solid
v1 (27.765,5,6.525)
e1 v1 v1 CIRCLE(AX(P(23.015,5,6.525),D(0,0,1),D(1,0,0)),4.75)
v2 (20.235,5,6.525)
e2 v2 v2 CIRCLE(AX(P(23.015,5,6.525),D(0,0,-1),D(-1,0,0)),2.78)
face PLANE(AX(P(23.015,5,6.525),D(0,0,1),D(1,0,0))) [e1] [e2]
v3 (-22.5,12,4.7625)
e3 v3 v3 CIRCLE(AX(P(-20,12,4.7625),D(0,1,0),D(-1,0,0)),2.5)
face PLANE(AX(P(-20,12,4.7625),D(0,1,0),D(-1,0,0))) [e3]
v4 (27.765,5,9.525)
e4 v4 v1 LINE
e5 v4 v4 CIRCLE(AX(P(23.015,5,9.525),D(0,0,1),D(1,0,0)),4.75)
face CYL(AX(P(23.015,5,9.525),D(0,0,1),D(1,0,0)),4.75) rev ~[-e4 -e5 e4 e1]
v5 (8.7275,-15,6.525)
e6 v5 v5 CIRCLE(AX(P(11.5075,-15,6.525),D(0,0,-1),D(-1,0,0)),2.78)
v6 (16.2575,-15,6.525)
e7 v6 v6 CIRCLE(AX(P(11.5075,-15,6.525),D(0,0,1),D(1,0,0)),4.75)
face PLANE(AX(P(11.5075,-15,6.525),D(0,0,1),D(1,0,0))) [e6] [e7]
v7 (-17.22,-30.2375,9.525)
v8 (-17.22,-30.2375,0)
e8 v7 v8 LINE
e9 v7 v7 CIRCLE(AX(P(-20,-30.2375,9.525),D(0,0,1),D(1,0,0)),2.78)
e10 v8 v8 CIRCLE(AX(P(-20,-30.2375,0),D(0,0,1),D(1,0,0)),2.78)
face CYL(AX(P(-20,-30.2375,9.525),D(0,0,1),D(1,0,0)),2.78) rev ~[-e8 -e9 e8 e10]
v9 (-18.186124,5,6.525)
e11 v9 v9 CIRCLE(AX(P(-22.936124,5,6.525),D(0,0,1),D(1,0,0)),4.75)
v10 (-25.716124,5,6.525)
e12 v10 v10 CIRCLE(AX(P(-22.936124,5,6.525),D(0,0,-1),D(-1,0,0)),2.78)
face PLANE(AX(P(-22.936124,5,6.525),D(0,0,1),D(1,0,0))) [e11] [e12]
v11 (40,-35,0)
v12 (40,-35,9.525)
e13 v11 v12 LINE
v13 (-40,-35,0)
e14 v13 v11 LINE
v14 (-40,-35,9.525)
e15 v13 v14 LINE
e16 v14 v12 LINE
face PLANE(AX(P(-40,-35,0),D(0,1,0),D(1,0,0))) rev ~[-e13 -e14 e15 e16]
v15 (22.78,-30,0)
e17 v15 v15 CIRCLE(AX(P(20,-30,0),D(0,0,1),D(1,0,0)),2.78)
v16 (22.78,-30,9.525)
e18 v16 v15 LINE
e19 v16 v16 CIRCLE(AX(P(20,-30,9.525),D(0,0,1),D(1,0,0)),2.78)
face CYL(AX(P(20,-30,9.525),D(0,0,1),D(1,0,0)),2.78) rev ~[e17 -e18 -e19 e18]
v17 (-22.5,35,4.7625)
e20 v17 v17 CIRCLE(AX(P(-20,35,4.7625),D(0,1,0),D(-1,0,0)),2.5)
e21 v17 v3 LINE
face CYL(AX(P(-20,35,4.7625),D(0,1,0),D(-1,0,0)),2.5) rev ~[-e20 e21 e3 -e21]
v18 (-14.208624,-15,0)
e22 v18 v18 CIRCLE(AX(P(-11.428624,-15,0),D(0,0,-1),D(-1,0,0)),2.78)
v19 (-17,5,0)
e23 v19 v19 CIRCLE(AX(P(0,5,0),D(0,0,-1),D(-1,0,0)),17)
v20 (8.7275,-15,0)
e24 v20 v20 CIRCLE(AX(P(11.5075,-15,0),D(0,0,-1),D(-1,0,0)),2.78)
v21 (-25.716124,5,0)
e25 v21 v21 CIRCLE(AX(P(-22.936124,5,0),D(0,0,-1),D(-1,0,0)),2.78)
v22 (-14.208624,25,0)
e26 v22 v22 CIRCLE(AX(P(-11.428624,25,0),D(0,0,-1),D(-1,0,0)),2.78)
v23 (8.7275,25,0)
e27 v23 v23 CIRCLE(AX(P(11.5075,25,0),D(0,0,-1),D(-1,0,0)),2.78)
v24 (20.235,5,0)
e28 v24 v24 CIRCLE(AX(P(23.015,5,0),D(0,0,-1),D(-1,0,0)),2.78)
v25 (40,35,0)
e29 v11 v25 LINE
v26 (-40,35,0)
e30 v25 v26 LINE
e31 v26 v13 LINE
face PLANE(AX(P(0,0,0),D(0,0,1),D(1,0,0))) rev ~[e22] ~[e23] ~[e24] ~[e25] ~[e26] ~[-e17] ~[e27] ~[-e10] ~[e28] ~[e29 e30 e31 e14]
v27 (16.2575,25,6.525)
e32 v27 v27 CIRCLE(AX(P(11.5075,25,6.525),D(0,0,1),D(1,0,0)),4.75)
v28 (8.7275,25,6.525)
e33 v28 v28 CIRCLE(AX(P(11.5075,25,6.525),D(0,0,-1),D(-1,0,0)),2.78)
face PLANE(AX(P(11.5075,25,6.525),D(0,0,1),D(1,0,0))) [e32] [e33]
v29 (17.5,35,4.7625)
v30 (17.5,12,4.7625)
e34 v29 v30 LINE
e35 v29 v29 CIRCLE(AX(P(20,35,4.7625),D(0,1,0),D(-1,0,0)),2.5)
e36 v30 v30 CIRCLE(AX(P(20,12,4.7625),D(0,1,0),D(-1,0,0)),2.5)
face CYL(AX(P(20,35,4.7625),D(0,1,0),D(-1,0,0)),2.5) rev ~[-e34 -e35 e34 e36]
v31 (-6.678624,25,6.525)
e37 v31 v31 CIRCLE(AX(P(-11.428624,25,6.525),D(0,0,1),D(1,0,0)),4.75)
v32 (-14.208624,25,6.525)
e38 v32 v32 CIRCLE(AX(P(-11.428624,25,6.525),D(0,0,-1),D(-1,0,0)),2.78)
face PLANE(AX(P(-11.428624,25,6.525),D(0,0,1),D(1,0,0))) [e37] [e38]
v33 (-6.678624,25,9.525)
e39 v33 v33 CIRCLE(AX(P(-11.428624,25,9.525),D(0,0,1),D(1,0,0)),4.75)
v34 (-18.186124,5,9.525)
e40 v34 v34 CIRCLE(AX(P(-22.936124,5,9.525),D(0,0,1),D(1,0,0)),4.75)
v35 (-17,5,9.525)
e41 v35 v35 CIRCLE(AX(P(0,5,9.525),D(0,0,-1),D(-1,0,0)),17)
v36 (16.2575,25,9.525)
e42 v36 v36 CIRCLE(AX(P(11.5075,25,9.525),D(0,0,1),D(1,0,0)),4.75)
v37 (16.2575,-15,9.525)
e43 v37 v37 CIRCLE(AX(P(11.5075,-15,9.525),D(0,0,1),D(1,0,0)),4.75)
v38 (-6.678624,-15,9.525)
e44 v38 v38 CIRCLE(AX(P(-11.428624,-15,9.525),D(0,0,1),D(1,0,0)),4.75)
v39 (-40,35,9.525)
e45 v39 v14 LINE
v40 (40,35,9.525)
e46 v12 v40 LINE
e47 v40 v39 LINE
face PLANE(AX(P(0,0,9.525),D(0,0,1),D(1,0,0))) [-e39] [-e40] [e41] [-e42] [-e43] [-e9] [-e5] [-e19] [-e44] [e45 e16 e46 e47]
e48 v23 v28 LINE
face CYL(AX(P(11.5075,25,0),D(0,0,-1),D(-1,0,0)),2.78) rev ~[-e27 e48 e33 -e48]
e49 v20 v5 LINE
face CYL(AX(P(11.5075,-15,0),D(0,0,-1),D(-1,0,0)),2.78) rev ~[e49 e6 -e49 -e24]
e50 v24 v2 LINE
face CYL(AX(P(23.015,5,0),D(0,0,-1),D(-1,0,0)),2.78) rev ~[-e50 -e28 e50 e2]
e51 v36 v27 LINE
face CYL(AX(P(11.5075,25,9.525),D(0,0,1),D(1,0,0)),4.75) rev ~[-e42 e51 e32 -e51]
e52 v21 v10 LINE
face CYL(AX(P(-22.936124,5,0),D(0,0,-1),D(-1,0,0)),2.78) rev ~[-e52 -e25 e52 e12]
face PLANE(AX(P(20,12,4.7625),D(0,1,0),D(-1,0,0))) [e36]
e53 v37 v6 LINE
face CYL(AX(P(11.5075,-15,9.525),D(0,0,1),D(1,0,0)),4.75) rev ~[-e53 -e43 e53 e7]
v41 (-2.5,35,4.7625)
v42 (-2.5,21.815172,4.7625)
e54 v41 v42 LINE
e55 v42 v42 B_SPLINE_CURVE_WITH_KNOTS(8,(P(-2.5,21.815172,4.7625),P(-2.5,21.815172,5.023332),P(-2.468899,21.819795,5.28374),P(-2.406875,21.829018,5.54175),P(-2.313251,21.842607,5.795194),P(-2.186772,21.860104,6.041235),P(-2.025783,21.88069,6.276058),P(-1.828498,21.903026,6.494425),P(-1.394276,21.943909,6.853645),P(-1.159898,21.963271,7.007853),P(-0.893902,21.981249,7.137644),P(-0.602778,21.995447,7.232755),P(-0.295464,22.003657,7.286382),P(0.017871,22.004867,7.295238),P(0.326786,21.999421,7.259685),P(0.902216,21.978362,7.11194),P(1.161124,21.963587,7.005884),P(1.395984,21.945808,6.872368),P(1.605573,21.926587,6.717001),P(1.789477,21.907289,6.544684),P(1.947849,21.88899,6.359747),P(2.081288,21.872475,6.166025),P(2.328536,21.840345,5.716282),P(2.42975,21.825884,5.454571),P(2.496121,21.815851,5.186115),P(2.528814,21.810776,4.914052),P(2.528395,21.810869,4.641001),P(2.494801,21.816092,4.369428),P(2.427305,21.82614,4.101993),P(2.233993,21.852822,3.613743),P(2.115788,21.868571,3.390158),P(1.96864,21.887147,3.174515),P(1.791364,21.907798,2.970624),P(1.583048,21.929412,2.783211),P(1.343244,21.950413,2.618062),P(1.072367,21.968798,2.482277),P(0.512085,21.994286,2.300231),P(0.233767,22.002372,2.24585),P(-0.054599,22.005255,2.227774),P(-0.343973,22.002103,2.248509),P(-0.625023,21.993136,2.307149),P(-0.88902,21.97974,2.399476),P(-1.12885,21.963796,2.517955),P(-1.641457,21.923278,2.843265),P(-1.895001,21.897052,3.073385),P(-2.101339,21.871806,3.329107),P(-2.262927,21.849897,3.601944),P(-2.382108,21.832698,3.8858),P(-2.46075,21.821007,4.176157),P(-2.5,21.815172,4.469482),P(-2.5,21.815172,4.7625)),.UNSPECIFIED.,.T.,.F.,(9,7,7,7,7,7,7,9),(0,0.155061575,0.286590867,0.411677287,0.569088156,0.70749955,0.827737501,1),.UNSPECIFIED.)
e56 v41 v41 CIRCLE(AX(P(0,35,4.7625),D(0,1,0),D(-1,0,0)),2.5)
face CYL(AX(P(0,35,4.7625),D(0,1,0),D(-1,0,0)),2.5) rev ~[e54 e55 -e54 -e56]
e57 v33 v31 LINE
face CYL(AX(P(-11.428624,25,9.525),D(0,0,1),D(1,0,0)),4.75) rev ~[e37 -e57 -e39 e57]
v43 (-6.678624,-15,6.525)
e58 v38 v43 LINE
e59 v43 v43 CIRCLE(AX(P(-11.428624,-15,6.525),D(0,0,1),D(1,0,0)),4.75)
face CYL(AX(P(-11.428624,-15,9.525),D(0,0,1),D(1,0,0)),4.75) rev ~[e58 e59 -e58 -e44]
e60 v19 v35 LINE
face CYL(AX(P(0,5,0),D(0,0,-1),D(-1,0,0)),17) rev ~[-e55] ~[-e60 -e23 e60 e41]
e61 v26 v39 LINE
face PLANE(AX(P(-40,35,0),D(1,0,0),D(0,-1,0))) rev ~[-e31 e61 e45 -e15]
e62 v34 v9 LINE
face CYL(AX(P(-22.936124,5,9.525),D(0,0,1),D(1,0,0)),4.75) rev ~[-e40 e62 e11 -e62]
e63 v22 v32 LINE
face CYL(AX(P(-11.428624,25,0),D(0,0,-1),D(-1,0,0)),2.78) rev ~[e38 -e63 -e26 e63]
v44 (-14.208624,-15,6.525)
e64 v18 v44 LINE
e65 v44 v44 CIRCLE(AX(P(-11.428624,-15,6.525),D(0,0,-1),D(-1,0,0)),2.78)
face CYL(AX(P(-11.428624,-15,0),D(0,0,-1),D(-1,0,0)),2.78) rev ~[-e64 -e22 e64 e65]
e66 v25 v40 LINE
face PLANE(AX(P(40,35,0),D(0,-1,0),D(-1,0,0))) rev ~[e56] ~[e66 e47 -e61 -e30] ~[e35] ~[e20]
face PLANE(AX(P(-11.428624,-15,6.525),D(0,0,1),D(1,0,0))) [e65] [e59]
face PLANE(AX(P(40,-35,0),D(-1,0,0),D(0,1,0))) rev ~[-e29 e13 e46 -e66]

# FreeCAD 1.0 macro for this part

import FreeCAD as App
import Part
import Sketcher
from FreeCAD import Vector
Q = App.Units.Quantity

doc = App.newDocument("Part")
body = doc.addObject("PartDesign::Body", "Body")

# Sketch on XY plane
sketch1 = body.newObject("Sketcher::SketchObject", "Sketch")
sketch1.AttachmentSupport = (doc.getObject("XY_Plane"), [""])
sketch1.MapMode = "FlatFace"
sketch1.addGeometry([
    Part.LineSegment(Vector(-40, 35, 0), Vector(-40, -35, 0)),
    Part.LineSegment(Vector(-40, -35, 0), Vector(40, -35, 0)),
    Part.LineSegment(Vector(40, -35, 0), Vector(40, 35, 0)),
    Part.LineSegment(Vector(40, 35, 0), Vector(-40, 35, 0)),
], False)
sketch1.addConstraint([
    Sketcher.Constraint("Coincident", 0, 2, 1, 1),
    Sketcher.Constraint("Coincident", 1, 2, 2, 1),
    Sketcher.Constraint("Coincident", 2, 2, 3, 1),
    Sketcher.Constraint("Coincident", 3, 2, 0, 1),
    Sketcher.Constraint("Vertical", 0),
    Sketcher.Constraint("Horizontal", 1),
    Sketcher.Constraint("Vertical", 2),
    Sketcher.Constraint("Horizontal", 3),
    Sketcher.Constraint("Symmetric", 0, 2, 2, 2, -1, 1),
    Sketcher.Constraint("DistanceX", 1, 1, 1, 2, Q("80 mm")),
    Sketcher.Constraint("DistanceY", 0, 2, 0, 1, Q("70 mm")),
])
pad1 = body.newObject("PartDesign::Pad", "Pad")
pad1.Profile = sketch1
pad1.Length = 9.525

# Sketch on XZ plane
sketch2 = body.newObject("Sketcher::SketchObject", "Sketch001")
sketch2.AttachmentSupport = (doc.getObject("XZ_Plane"), [""])
sketch2.MapMode = "FlatFace"
sketch2.AttachmentOffset = App.Placement(Vector(0, 0, -35), App.Rotation())
sketch2.addGeometry([
    Part.Circle(Vector(-20, 4.8, 0), Vector(0, 0, 1), 2.5),
    Part.Circle(Vector(0, 4.8, 0), Vector(0, 0, 1), 2.5),
    Part.Circle(Vector(20, 4.8, 0), Vector(0, 0, 1), 2.5),
], False)
sketch2.addConstraint([
    Sketcher.Constraint("Equal", 0, 1),
    Sketcher.Constraint("Equal", 1, 2),
    Sketcher.Constraint("Symmetric", 0, 3, 2, 3, -2),
    Sketcher.Constraint("PointOnObject", 1, 3, -2),
    Sketcher.Constraint("Horizontal", 0, 3, 1, 3),
    Sketcher.Constraint("Diameter", 0, Q("5 mm")),
    Sketcher.Constraint("DistanceX", 0, 3, -1, 1, Q("20 mm")),
    Sketcher.Constraint("DistanceY", -1, 1, 0, 3, Q("4.7625 mm")),
])
pocket1 = body.newObject("PartDesign::Pocket", "Pocket")
pocket1.Profile = sketch2
pocket1.Length = 23
pocket1.Reversed = True

# Sketch on XY plane
sketch3 = body.newObject("Sketcher::SketchObject", "Sketch002")
sketch3.AttachmentSupport = (doc.getObject("XY_Plane"), [""])
sketch3.MapMode = "FlatFace"
sketch3.AttachmentOffset = App.Placement(Vector(0, 0, 9.525), App.Rotation())
sketch3.addGeometry([
    Part.Circle(Vector(-20, -30.2, 0), Vector(0, 0, 1), 2.8),
    Part.Circle(Vector(20, -30, 0), Vector(0, 0, 1), 2.8),
], False)
sketch3.addConstraint([
    Sketcher.Constraint("Equal", 0, 1),
    Sketcher.Constraint("Diameter", 0, Q("5.56 mm")),
    Sketcher.Constraint("DistanceX", 0, 3, -1, 1, Q("20 mm")),
    Sketcher.Constraint("DistanceX", -1, 1, 1, 3, Q("20 mm")),
    Sketcher.Constraint("DistanceY", 1, 3, -1, 1, Q("30 mm")),
    Sketcher.Constraint("DistanceY", 0, 3, -1, 1, Q("30.2375 mm")),
])
pocket2 = body.newObject("PartDesign::Pocket", "Pocket001")
pocket2.Profile = sketch3
pocket2.Length = 9.525

# Sketch on XY plane
sketch4 = body.newObject("Sketcher::SketchObject", "Sketch003")
sketch4.AttachmentSupport = (doc.getObject("XY_Plane"), [""])
sketch4.MapMode = "FlatFace"
sketch4.addGeometry(Part.Circle(Vector(0, 5, 0), Vector(0, 0, 1), 17), False)
sketch4.addConstraint([
    Sketcher.Constraint("PointOnObject", 0, 3, -2),
    Sketcher.Constraint("Diameter", 0, Q("34 mm")),
    Sketcher.Constraint("DistanceY", -1, 1, 0, 3, Q("5 mm")),
])
pocket3 = body.newObject("PartDesign::Pocket", "Pocket002")
pocket3.Profile = sketch4
pocket3.Length = 10
pocket3.Reversed = True

# Sketch on XY plane
sketch5 = body.newObject("Sketcher::SketchObject", "Sketch004")
sketch5.AttachmentSupport = (doc.getObject("XY_Plane"), [""])
sketch5.MapMode = "FlatFace"
sketch5.addGeometry([
    Part.Circle(Vector(23, 5, 0), Vector(0, 0, 1), 2.8),  # 0
    Part.Circle(Vector(11.5, -15, 0), Vector(0, 0, 1), 2.8),  # 1
    Part.Circle(Vector(11.5, 25, 0), Vector(0, 0, 1), 2.8),  # 2
    Part.Circle(Vector(-11.4, 25, 0), Vector(0, 0, 1), 2.8),  # 3
    Part.Circle(Vector(-22.9, 5, 0), Vector(0, 0, 1), 2.8),  # 4
    Part.Circle(Vector(-11.4, -15, 0), Vector(0, 0, 1), 2.8),  # 5
], False)
sketch5.addConstraint([
    Sketcher.Constraint("Equal", 0, 1),
    Sketcher.Constraint("Equal", 1, 2),
    Sketcher.Constraint("Equal", 2, 3),
    Sketcher.Constraint("Equal", 3, 4),
    Sketcher.Constraint("Equal", 4, 5),
    Sketcher.Constraint("Horizontal", 2, 3, 3, 3),
    Sketcher.Constraint("Horizontal", 0, 3, 4, 3),
    Sketcher.Constraint("Horizontal", 1, 3, 5, 3),
    Sketcher.Constraint("Vertical", 1, 3, 2, 3),
    Sketcher.Constraint("Vertical", 3, 3, 5, 3),
    Sketcher.Constraint("Diameter", 0, Q("5.56 mm")),
    Sketcher.Constraint("DistanceY", -1, 1, 0, 3, Q("5 mm")),
    Sketcher.Constraint("DistanceY", 1, 3, -1, 1, Q("15 mm")),
    Sketcher.Constraint("DistanceY", -1, 1, 2, 3, Q("25 mm")),
    Sketcher.Constraint("DistanceX", -1, 1, 0, 3, Q("23.015 mm")),
    Sketcher.Constraint("DistanceX", -1, 1, 1, 3, Q("11.5075 mm")),
    Sketcher.Constraint("DistanceX", 4, 3, 3, 3, Q("11.5075 mm")),
    Sketcher.Constraint("DistanceX", 3, 3, -1, 1, Q("11.428624 mm")),
])
pocket4 = body.newObject("PartDesign::Pocket", "Pocket003")
pocket4.Profile = sketch5
pocket4.Length = 9.525
pocket4.Reversed = True

# Sketch on XY plane
sketch6 = body.newObject("Sketcher::SketchObject", "Sketch005")
sketch6.AttachmentSupport = (doc.getObject("XY_Plane"), [""])
sketch6.MapMode = "FlatFace"
sketch6.AttachmentOffset = App.Placement(Vector(0, 0, 9.525), App.Rotation())
sketch6.addGeometry([
    Part.Circle(Vector(-22.9, 5, 0), Vector(0, 0, 1), 4.8),  # 0
    Part.Circle(Vector(-11.4, 25, 0), Vector(0, 0, 1), 4.8),  # 1
    Part.Circle(Vector(11.5, 25, 0), Vector(0, 0, 1), 4.8),  # 2
    Part.Circle(Vector(23, 5, 0), Vector(0, 0, 1), 4.8),  # 3
    Part.Circle(Vector(11.5, -15, 0), Vector(0, 0, 1), 4.8),  # 4
    Part.Circle(Vector(-11.4, -15, 0), Vector(0, 0, 1), 4.8),  # 5
], False)
sketch6.addConstraint([
    Sketcher.Constraint("Equal", 0, 1),
    Sketcher.Constraint("Equal", 1, 2),
    Sketcher.Constraint("Equal", 2, 3),
    Sketcher.Constraint("Equal", 3, 4),
    Sketcher.Constraint("Equal", 4, 5),
    Sketcher.Constraint("Horizontal", 1, 3, 2, 3),
    Sketcher.Constraint("Horizontal", 0, 3, 3, 3),
    Sketcher.Constraint("Horizontal", 4, 3, 5, 3),
    Sketcher.Constraint("Vertical", 2, 3, 4, 3),
    Sketcher.Constraint("Vertical", 1, 3, 5, 3),
    Sketcher.Constraint("Diameter", 0, Q("9.5 mm")),
    Sketcher.Constraint("DistanceY", -1, 1, 0, 3, Q("5 mm")),
    Sketcher.Constraint("DistanceY", -1, 1, 1, 3, Q("25 mm")),
    Sketcher.Constraint("DistanceY", 4, 3, -1, 1, Q("15 mm")),
    Sketcher.Constraint("DistanceX", -1, 1, 3, 3, Q("23.015 mm")),
    Sketcher.Constraint("DistanceX", -1, 1, 2, 3, Q("11.5075 mm")),
    Sketcher.Constraint("DistanceX", 0, 3, 1, 3, Q("11.5075 mm")),
    Sketcher.Constraint("DistanceX", 0, 3, -1, 1, Q("22.936124 mm")),
])
pocket5 = body.newObject("PartDesign::Pocket", "Pocket004")
pocket5.Profile = sketch6
pocket5.Length = 3

doc.recompute()
